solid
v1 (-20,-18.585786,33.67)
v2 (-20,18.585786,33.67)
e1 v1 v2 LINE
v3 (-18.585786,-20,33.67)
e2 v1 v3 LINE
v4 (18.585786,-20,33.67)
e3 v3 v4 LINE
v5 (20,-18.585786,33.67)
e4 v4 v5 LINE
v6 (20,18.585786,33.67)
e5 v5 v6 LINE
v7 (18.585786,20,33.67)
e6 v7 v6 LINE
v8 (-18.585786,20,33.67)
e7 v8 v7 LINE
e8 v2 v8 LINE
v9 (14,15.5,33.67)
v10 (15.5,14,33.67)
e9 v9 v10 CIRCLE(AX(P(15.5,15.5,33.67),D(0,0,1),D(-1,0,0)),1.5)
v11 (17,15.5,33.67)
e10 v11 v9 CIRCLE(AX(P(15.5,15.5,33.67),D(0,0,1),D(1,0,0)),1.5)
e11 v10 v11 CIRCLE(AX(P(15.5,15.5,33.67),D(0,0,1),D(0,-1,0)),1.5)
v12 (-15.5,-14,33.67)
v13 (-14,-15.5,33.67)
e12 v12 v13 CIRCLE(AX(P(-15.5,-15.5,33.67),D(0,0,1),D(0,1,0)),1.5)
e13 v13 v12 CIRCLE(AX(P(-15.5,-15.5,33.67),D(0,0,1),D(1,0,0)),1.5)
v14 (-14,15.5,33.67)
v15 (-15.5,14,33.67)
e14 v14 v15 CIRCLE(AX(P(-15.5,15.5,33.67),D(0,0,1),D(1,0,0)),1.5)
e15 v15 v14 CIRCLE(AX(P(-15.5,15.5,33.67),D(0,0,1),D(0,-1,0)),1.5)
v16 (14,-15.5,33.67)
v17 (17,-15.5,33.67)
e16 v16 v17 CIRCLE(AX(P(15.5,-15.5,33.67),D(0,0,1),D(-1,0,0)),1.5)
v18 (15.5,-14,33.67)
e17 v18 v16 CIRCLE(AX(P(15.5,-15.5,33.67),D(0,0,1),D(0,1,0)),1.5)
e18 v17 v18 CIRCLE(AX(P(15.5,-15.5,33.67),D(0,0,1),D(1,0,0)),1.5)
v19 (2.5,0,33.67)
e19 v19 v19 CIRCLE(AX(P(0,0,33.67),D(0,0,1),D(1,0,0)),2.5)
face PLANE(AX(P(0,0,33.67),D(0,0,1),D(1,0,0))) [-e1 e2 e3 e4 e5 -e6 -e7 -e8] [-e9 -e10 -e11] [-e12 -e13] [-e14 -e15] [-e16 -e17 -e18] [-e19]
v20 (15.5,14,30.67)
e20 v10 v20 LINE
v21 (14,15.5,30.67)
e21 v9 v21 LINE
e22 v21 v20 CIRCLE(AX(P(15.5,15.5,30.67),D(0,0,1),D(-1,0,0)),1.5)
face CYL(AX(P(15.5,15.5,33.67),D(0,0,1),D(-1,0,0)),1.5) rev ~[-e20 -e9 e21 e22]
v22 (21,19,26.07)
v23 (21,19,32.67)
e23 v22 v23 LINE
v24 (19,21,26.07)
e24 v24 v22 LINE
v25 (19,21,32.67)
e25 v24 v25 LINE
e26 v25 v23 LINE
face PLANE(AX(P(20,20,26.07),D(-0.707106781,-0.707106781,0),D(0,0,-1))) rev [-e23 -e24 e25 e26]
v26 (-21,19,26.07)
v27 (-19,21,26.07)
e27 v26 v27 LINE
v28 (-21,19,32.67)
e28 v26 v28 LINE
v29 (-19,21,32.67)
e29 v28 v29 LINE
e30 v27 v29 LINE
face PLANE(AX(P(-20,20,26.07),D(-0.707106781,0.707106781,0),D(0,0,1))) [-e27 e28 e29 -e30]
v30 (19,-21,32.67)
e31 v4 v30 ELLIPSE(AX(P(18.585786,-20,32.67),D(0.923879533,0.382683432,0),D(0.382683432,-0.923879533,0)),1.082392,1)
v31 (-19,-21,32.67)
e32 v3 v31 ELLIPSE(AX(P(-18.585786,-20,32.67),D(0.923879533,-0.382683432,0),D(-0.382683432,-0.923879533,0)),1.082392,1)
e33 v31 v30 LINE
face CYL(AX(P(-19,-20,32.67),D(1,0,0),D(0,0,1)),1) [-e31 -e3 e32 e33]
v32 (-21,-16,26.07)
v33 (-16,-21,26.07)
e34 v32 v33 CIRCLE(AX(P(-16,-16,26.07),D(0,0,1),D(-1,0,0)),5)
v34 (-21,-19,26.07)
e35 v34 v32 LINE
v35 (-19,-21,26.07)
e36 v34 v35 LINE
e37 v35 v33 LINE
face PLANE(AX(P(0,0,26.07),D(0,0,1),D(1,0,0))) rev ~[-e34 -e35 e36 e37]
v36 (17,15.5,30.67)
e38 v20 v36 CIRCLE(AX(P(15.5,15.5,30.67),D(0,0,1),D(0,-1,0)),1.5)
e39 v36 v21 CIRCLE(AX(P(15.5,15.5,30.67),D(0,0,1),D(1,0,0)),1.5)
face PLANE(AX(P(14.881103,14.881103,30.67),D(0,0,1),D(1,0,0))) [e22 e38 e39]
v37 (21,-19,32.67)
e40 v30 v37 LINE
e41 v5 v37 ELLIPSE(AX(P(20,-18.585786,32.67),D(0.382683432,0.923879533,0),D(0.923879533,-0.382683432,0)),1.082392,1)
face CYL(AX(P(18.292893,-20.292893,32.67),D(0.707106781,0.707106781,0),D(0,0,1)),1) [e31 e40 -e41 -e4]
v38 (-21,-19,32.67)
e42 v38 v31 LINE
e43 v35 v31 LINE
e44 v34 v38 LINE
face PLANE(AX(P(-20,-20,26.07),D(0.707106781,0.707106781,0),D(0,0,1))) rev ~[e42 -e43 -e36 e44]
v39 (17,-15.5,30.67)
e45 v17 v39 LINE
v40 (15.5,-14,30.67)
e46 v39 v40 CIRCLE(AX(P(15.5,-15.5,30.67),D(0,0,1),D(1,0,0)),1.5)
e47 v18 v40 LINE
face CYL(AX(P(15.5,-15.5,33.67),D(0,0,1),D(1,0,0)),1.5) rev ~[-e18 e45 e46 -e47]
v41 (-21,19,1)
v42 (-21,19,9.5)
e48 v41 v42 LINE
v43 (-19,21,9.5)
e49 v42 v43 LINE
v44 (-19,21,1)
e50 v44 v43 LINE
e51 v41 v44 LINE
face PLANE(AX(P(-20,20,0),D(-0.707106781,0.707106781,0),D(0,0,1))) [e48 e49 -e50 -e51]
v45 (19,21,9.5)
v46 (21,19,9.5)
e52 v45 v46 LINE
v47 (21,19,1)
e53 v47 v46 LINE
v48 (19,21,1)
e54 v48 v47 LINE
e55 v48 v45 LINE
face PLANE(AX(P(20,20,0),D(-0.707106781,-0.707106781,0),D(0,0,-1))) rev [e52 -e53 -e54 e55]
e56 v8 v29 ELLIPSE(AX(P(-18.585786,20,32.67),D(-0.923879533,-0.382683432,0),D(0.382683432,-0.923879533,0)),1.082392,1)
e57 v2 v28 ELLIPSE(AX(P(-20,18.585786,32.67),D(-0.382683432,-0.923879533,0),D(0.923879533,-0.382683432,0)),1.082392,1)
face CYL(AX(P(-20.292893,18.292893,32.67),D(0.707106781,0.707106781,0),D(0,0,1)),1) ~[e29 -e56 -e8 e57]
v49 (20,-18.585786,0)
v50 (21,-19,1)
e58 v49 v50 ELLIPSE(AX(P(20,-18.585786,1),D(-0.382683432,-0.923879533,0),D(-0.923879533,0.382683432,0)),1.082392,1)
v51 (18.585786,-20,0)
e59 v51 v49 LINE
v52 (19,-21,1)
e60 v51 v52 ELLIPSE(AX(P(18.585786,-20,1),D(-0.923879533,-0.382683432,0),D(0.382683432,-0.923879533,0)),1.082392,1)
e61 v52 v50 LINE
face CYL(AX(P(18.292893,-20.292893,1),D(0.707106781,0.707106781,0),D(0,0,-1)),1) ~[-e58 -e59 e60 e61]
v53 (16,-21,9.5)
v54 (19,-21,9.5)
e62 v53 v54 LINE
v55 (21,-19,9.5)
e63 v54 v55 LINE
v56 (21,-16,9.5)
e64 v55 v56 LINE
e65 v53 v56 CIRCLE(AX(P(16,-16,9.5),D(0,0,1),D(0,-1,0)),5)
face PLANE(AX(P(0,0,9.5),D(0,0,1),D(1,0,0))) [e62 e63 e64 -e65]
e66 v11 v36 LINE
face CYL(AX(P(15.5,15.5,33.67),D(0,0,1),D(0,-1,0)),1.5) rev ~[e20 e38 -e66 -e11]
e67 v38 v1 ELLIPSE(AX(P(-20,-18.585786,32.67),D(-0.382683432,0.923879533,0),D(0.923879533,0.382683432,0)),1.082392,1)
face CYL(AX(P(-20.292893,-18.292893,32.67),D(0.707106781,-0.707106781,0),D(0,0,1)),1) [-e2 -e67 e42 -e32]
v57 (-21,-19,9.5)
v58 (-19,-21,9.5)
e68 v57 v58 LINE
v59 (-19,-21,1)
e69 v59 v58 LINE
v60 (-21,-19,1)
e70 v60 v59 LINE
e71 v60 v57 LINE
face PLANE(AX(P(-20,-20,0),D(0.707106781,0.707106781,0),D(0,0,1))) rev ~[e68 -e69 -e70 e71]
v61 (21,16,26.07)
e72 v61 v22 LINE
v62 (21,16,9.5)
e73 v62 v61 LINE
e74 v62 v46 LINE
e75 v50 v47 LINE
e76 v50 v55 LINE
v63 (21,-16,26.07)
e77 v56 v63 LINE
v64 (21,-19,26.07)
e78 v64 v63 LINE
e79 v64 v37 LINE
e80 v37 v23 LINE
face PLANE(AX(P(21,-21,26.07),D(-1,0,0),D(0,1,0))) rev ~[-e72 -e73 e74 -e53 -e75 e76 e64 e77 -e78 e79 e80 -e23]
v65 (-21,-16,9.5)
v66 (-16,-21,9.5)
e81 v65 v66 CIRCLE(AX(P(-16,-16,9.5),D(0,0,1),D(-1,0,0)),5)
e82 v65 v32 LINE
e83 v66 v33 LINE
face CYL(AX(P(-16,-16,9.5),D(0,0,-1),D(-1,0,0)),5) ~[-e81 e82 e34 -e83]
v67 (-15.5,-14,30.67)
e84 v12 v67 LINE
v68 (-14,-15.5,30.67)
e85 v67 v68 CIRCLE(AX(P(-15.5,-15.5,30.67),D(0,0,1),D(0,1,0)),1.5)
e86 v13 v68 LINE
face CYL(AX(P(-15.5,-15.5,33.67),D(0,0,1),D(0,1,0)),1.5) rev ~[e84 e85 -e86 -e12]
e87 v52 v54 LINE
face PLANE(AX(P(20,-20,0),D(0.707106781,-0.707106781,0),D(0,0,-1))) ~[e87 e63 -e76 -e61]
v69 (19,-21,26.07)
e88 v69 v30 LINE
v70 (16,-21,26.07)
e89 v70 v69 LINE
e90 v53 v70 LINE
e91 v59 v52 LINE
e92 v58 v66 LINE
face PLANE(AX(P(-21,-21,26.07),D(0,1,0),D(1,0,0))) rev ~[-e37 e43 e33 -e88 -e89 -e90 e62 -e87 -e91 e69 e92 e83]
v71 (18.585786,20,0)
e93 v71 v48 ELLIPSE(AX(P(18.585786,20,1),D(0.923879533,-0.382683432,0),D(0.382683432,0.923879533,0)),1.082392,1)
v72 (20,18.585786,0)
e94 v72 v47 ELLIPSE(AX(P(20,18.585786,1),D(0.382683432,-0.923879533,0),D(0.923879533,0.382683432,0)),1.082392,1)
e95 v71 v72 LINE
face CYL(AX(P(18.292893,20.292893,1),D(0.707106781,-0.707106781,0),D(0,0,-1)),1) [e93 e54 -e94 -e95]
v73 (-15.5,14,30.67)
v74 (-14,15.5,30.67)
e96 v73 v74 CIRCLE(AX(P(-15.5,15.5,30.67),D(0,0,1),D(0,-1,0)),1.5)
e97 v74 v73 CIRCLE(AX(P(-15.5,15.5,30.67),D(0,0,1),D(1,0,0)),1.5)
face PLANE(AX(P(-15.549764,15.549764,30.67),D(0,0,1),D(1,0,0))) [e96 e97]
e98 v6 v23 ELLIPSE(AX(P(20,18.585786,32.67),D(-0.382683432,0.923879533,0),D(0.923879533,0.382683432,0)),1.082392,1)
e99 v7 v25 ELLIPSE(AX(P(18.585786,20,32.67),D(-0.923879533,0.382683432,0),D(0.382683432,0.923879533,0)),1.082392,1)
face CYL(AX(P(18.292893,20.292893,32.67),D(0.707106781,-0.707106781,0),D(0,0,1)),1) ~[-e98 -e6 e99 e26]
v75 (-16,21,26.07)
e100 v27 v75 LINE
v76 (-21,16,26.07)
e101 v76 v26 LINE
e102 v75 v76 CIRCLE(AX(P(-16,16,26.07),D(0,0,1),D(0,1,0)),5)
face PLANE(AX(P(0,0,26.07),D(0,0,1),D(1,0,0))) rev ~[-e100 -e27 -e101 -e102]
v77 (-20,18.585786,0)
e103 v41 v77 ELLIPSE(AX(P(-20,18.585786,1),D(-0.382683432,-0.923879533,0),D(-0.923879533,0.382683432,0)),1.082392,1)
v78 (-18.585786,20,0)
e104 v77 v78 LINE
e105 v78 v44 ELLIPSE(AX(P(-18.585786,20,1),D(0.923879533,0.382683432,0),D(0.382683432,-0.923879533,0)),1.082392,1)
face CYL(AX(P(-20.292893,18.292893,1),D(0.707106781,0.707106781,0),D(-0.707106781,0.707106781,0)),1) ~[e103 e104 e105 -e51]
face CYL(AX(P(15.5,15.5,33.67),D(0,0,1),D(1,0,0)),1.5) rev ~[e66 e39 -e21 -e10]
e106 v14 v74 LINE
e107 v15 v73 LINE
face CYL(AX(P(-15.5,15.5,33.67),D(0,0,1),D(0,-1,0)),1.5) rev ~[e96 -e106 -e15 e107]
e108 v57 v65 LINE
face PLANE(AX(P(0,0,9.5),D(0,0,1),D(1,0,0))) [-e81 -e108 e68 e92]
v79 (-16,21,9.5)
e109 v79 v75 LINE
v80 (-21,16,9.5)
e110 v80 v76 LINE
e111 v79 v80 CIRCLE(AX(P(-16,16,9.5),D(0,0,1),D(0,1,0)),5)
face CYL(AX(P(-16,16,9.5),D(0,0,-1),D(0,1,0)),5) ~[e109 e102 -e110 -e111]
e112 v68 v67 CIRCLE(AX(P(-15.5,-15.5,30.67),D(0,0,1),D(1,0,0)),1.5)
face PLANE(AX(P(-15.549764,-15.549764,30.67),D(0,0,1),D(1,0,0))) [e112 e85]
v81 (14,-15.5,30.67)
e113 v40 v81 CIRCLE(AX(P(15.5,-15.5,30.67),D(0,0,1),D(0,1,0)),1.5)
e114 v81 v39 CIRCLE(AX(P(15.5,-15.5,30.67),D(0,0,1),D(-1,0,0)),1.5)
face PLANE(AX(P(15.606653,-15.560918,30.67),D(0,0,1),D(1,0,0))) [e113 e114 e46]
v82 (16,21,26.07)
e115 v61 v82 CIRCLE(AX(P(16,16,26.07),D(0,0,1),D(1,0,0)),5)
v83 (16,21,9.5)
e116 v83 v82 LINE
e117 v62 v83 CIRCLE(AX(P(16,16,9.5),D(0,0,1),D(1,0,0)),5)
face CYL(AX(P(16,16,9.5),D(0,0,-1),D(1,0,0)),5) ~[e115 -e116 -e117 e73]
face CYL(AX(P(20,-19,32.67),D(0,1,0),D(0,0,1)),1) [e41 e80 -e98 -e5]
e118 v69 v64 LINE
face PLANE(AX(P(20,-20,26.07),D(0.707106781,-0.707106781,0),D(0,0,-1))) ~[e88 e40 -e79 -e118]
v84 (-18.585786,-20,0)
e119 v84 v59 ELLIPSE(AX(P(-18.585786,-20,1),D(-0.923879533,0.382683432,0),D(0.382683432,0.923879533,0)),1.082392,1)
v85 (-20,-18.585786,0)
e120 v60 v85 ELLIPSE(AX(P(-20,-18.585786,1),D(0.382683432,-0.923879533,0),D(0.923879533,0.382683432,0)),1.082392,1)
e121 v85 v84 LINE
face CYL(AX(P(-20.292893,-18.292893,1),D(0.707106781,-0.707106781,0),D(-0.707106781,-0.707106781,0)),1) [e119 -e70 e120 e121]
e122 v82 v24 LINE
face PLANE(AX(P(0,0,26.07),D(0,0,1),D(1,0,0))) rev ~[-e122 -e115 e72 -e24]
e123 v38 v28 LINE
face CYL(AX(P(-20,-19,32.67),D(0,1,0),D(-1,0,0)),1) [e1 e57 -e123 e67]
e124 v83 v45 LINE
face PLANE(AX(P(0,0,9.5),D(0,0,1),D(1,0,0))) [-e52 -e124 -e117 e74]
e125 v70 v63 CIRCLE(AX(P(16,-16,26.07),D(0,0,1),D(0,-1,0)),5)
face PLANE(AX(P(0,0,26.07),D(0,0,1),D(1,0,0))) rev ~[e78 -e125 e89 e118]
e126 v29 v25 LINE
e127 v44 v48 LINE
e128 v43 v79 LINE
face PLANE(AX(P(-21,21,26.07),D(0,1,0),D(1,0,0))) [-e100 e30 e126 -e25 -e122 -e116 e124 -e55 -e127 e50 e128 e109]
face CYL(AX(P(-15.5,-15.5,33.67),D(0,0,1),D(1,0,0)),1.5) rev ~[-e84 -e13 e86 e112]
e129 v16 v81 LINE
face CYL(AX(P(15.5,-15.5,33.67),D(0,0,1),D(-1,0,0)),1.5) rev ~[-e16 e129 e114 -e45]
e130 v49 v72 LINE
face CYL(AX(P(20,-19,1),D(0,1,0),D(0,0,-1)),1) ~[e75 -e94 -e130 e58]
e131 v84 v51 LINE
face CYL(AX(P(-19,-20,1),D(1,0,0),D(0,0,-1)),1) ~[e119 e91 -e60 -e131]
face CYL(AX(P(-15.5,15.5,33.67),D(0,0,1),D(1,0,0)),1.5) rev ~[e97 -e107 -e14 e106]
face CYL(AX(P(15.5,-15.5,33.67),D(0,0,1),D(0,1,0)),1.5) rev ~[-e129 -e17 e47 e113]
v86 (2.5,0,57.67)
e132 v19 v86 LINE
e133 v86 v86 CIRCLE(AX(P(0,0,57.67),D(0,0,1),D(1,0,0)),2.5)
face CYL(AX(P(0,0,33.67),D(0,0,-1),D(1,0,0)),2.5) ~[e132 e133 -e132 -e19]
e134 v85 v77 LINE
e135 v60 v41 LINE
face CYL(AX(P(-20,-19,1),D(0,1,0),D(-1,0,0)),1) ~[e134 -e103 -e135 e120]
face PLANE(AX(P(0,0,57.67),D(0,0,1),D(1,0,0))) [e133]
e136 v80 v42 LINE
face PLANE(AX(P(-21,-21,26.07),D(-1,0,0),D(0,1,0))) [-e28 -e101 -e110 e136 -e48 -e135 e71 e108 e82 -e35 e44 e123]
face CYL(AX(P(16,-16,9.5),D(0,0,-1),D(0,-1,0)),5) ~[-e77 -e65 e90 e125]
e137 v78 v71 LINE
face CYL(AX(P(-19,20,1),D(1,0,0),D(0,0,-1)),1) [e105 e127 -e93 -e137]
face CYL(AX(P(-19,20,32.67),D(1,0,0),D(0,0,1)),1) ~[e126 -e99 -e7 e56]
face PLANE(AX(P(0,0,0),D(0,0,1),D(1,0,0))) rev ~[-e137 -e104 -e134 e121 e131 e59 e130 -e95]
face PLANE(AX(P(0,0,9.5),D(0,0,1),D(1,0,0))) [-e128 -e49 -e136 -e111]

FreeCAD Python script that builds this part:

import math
import FreeCAD as App
import Part
import Sketcher


def edges_at(feature, points):
    """Names of the edges that pass closest to the given points."""
    edges = feature.Shape.Edges
    near = lambda p: min(range(len(edges)), key=lambda i: edges[i].distToShape(Part.Vertex(*p))[0])
    return sorted({f"Edge{near(p) + 1}" for p in points})


def add_polygon(sketch, points):
    """Adds a closed chain of lines whose ends are joined by coincident constraints."""
    first, n = sketch.GeometryCount, len(points)
    for a, b in zip(points, points[1:] + points[:1]):
        sketch.addGeometry(Part.LineSegment(App.Vector(*a, 0), App.Vector(*b, 0)), False)
    for i in range(n):
        sketch.addConstraint(Sketcher.Constraint("Coincident", first + i, 2, first + (i + 1) % n, 1))

doc = App.newDocument("Part")
body = doc.addObject("PartDesign::Body", "Body")

# Sketch on XY plane
sketch1 = body.newObject("Sketcher::SketchObject", "Sketch")
sketch1.AttachmentSupport = (doc.getObject("XY_Plane"), [""])
sketch1.MapMode = "FlatFace"
add_polygon(sketch1, [(-21, 21), (-21, -21), (21, -21), (21, 21)])  # lines 0-3
sketch1.addConstraint([
    Sketcher.Constraint("Vertical", 0),
    Sketcher.Constraint("Horizontal", 1),
    Sketcher.Constraint("Vertical", 2),
    Sketcher.Constraint("Horizontal", 3),
    Sketcher.Constraint("Symmetric", 0, 2, 2, 2, -1, 1),
    Sketcher.Constraint("Equal", 3, 0),
    Sketcher.Constraint("DistanceX", 1, 1, 1, 2, 42.0),
])
pad1 = body.newObject("PartDesign::Pad", "Pad")
pad1.Profile = sketch1
pad1.Length = 9.5

# Sketch on XY plane
sketch2 = body.newObject("Sketcher::SketchObject", "Sketch001")
sketch2.AttachmentSupport = (doc.getObject("XY_Plane"), [""])
sketch2.MapMode = "FlatFace"
sketch2.AttachmentOffset = App.Placement(App.Vector(0, 0, 9.5), App.Rotation())
sketch2.addGeometry([
    Part.LineSegment(App.Vector(-16, -21, 0), App.Vector(16, -21, 0)),  # 0
    Part.ArcOfCircle(Part.Circle(App.Vector(16, -16, 0), App.Vector(0, 0, 1), 5), math.radians(-90), math.radians(0)),  # 1
    Part.LineSegment(App.Vector(21, -16, 0), App.Vector(21, 16, 0)),  # 2
    Part.ArcOfCircle(Part.Circle(App.Vector(16, 16, 0), App.Vector(0, 0, 1), 5), math.radians(0), math.radians(90)),  # 3
    Part.LineSegment(App.Vector(16, 21, 0), App.Vector(-16, 21, 0)),  # 4
    Part.ArcOfCircle(Part.Circle(App.Vector(-16, 16, 0), App.Vector(0, 0, 1), 5), math.radians(90), math.radians(180)),  # 5
    Part.LineSegment(App.Vector(-21, 16, 0), App.Vector(-21, -16, 0)),  # 6
    Part.ArcOfCircle(Part.Circle(App.Vector(-16, -16, 0), App.Vector(0, 0, 1), 5), math.radians(180), math.radians(270)),  # 7
], False)
sketch2.addConstraint([
    Sketcher.Constraint("Tangent", 0, 2, 1, 1),
    Sketcher.Constraint("Tangent", 1, 2, 2, 1),
    Sketcher.Constraint("Tangent", 2, 2, 3, 1),
    Sketcher.Constraint("Tangent", 3, 2, 4, 1),
    Sketcher.Constraint("Tangent", 4, 2, 5, 1),
    Sketcher.Constraint("Tangent", 5, 2, 6, 1),
    Sketcher.Constraint("Tangent", 6, 2, 7, 1),
    Sketcher.Constraint("Tangent", 7, 2, 0, 1),
    Sketcher.Constraint("Horizontal", 0),
    Sketcher.Constraint("Vertical", 2),
    Sketcher.Constraint("Horizontal", 4),
    Sketcher.Constraint("Vertical", 6),
    Sketcher.Constraint("Equal", 1, 3),
    Sketcher.Constraint("Equal", 3, 5),
    Sketcher.Constraint("Equal", 5, 7),
    Sketcher.Constraint("Symmetric", 1, 3, 5, 3, -1, 1),
    Sketcher.Constraint("Equal", 4, 2),
    Sketcher.Constraint("Radius", 1, 5.0),
    Sketcher.Constraint("DistanceX", 0, 1, 0, 2, 32.0),
])
pad2 = body.newObject("PartDesign::Pad", "Pad001")
pad2.Profile = sketch2
pad2.Length = 16.57

# Sketch on XY plane
sketch3 = body.newObject("Sketcher::SketchObject", "Sketch002")
sketch3.AttachmentSupport = (doc.getObject("XY_Plane"), [""])
sketch3.MapMode = "FlatFace"
sketch3.AttachmentOffset = App.Placement(App.Vector(0, 0, 26.07), App.Rotation())
add_polygon(sketch3, [(-21, 21), (-21, -21), (21, -21), (21, 21)])  # lines 0-3
sketch3.addConstraint([
    Sketcher.Constraint("Vertical", 0),
    Sketcher.Constraint("Horizontal", 1),
    Sketcher.Constraint("Vertical", 2),
    Sketcher.Constraint("Horizontal", 3),
    Sketcher.Constraint("Symmetric", 0, 2, 2, 2, -1, 1),
    Sketcher.Constraint("Equal", 3, 0),
    Sketcher.Constraint("DistanceX", 1, 1, 1, 2, 42.0),
])
pad3 = body.newObject("PartDesign::Pad", "Pad002")
pad3.Profile = sketch3
pad3.Length = 7.6

# Sketch on XY plane
sketch4 = body.newObject("Sketcher::SketchObject", "Sketch003")
sketch4.AttachmentSupport = (doc.getObject("XY_Plane"), [""])
sketch4.MapMode = "FlatFace"
sketch4.AttachmentOffset = App.Placement(App.Vector(0, 0, 33.67), App.Rotation())
sketch4.addGeometry([
    Part.ArcOfCircle(Part.Circle(App.Vector(15.5, -15.5, 0), App.Vector(0, 0, 1), 1.5), math.radians(180), math.radians(360)),  # 0
    Part.ArcOfCircle(Part.Circle(App.Vector(15.5, -15.5, 0), App.Vector(0, 0, 1), 1.5), math.radians(0), math.radians(90)),  # 1
    Part.ArcOfCircle(Part.Circle(App.Vector(15.5, -15.5, 0), App.Vector(0, 0, 1), 1.5), math.radians(90), math.radians(180)),  # 2
    Part.ArcOfCircle(Part.Circle(App.Vector(15.5, 15.5, 0), App.Vector(0, 0, 1), 1.5), math.radians(180), math.radians(270)),  # 3
    Part.ArcOfCircle(Part.Circle(App.Vector(15.5, 15.5, 0), App.Vector(0, 0, 1), 1.5), math.radians(-90), math.radians(0)),  # 4
    Part.ArcOfCircle(Part.Circle(App.Vector(15.5, 15.5, 0), App.Vector(0, 0, 1), 1.5), math.radians(0), math.radians(180)),  # 5
    Part.ArcOfCircle(Part.Circle(App.Vector(-15.5, -15.5, 0), App.Vector(0, 0, 1), 1.5), math.radians(90), math.radians(360)),  # 6
    Part.ArcOfCircle(Part.Circle(App.Vector(-15.5, -15.5, 0), App.Vector(0, 0, 1), 1.5), math.radians(0), math.radians(90)),  # 7
    Part.ArcOfCircle(Part.Circle(App.Vector(-15.5, 15.5, 0), App.Vector(0, 0, 1), 1.5), math.radians(0), math.radians(270)),  # 8
    Part.ArcOfCircle(Part.Circle(App.Vector(-15.5, 15.5, 0), App.Vector(0, 0, 1), 1.5), math.radians(-90), math.radians(0)),  # 9
], False)
sketch4.addConstraint([
    Sketcher.Constraint("Tangent", 0, 2, 1, 1),
    Sketcher.Constraint("Tangent", 1, 2, 2, 1),
    Sketcher.Constraint("Tangent", 2, 2, 0, 1),
    Sketcher.Constraint("Tangent", 3, 2, 4, 1),
    Sketcher.Constraint("Tangent", 4, 2, 5, 1),
    Sketcher.Constraint("Tangent", 5, 2, 3, 1),
    Sketcher.Constraint("Tangent", 6, 1, 7, 2),
    Sketcher.Constraint("Coincident", 7, 1, 6, 2),
    Sketcher.Constraint("Tangent", 8, 1, 9, 2),
    Sketcher.Constraint("Coincident", 9, 1, 8, 2),
    Sketcher.Constraint("Equal", 2, 3),
    Sketcher.Constraint("Equal", 5, 6),
    Sketcher.Constraint("Equal", 7, 8),
    Sketcher.Constraint("Symmetric", 3, 3, 6, 3, -1, 1),
    Sketcher.Constraint("Symmetric", 0, 3, 8, 3, -1, 1),
    Sketcher.Constraint("Symmetric", 0, 3, 6, 3, -2),
    Sketcher.Constraint("Horizontal", 7, 3, 0, 2),
    Sketcher.Constraint("Horizontal", 0, 2, 2, 2),
    Sketcher.Constraint("Horizontal", 9, 3, 4, 2),
    Sketcher.Constraint("Horizontal", 4, 2, 5, 2),
    Sketcher.Constraint("Horizontal", 2, 2, 7, 1),
    Sketcher.Constraint("Horizontal", 5, 2, 8, 1),
    Sketcher.Constraint("Vertical", 5, 3, 1, 2),
    Sketcher.Constraint("Vertical", 1, 2, 3, 2),
    Sketcher.Constraint("Vertical", 9, 3, 6, 1),
    Sketcher.Constraint("Vertical", 6, 1, 9, 1),
    Sketcher.Constraint("Radius", 0, 1.5),
    Sketcher.Constraint("DistanceX", -1, 1, 0, 2, 17.0),
    Sketcher.Constraint("DistanceY", 1, 2, -1, 1, 14.0),
])
pocket1 = body.newObject("PartDesign::Pocket", "Pocket")
pocket1.Profile = sketch4
pocket1.Length = 3

# Sketch on XY plane
sketch5 = body.newObject("Sketcher::SketchObject", "Sketch004")
sketch5.AttachmentSupport = (doc.getObject("XY_Plane"), [""])
sketch5.MapMode = "FlatFace"
sketch5.AttachmentOffset = App.Placement(App.Vector(0, 0, 33.67), App.Rotation())
sketch5.addGeometry(Part.Circle(App.Vector(0, 0, 0), App.Vector(0, 0, 1), 2.5), False)
sketch5.addConstraint([
    Sketcher.Constraint("Coincident", 0, 3, -1, 1),
    Sketcher.Constraint("Diameter", 0, 5.0),
])
pad4 = body.newObject("PartDesign::Pad", "Pad003")
pad4.Profile = sketch5
pad4.Length = 24
doc.recompute()

chamfer = body.newObject("PartDesign::Chamfer", "Chamfer")
chamfer.Base = (pad4, edges_at(pad4, [
    (21, 21, 29.87),
    (21, 21, 4.75),
    (-21, 21, 29.87),
    (-21, 21, 4.75),
    (-21, -21, 29.87),
    (-21, -21, 4.75),
    (21, -21, 4.75),
    (21, -21, 29.87),
]))
chamfer.Size = 2
doc.recompute()

fillet = body.newObject("PartDesign::Fillet", "Fillet")
fillet.Base = (chamfer, edges_at(chamfer, [
    (0, 21, 33.67),
    (-20, 20, 33.67),
    (-21, 0, 33.67),
    (-20, -20, 33.67),
    (0, -21, 33.67),
    (20, -20, 33.67),
    (21, 0, 33.67),
    (20, 20, 33.67),
    (0, 21, 0),
    (21, 0, 0),
    (20, 20, 0),
    (-21, 0, 0),
    (-20, 20, 0),
    (0, -21, 0),
    (20, -20, 0),
    (-20, -20, 0),
]))
fillet.Radius = 1

doc.recompute()
